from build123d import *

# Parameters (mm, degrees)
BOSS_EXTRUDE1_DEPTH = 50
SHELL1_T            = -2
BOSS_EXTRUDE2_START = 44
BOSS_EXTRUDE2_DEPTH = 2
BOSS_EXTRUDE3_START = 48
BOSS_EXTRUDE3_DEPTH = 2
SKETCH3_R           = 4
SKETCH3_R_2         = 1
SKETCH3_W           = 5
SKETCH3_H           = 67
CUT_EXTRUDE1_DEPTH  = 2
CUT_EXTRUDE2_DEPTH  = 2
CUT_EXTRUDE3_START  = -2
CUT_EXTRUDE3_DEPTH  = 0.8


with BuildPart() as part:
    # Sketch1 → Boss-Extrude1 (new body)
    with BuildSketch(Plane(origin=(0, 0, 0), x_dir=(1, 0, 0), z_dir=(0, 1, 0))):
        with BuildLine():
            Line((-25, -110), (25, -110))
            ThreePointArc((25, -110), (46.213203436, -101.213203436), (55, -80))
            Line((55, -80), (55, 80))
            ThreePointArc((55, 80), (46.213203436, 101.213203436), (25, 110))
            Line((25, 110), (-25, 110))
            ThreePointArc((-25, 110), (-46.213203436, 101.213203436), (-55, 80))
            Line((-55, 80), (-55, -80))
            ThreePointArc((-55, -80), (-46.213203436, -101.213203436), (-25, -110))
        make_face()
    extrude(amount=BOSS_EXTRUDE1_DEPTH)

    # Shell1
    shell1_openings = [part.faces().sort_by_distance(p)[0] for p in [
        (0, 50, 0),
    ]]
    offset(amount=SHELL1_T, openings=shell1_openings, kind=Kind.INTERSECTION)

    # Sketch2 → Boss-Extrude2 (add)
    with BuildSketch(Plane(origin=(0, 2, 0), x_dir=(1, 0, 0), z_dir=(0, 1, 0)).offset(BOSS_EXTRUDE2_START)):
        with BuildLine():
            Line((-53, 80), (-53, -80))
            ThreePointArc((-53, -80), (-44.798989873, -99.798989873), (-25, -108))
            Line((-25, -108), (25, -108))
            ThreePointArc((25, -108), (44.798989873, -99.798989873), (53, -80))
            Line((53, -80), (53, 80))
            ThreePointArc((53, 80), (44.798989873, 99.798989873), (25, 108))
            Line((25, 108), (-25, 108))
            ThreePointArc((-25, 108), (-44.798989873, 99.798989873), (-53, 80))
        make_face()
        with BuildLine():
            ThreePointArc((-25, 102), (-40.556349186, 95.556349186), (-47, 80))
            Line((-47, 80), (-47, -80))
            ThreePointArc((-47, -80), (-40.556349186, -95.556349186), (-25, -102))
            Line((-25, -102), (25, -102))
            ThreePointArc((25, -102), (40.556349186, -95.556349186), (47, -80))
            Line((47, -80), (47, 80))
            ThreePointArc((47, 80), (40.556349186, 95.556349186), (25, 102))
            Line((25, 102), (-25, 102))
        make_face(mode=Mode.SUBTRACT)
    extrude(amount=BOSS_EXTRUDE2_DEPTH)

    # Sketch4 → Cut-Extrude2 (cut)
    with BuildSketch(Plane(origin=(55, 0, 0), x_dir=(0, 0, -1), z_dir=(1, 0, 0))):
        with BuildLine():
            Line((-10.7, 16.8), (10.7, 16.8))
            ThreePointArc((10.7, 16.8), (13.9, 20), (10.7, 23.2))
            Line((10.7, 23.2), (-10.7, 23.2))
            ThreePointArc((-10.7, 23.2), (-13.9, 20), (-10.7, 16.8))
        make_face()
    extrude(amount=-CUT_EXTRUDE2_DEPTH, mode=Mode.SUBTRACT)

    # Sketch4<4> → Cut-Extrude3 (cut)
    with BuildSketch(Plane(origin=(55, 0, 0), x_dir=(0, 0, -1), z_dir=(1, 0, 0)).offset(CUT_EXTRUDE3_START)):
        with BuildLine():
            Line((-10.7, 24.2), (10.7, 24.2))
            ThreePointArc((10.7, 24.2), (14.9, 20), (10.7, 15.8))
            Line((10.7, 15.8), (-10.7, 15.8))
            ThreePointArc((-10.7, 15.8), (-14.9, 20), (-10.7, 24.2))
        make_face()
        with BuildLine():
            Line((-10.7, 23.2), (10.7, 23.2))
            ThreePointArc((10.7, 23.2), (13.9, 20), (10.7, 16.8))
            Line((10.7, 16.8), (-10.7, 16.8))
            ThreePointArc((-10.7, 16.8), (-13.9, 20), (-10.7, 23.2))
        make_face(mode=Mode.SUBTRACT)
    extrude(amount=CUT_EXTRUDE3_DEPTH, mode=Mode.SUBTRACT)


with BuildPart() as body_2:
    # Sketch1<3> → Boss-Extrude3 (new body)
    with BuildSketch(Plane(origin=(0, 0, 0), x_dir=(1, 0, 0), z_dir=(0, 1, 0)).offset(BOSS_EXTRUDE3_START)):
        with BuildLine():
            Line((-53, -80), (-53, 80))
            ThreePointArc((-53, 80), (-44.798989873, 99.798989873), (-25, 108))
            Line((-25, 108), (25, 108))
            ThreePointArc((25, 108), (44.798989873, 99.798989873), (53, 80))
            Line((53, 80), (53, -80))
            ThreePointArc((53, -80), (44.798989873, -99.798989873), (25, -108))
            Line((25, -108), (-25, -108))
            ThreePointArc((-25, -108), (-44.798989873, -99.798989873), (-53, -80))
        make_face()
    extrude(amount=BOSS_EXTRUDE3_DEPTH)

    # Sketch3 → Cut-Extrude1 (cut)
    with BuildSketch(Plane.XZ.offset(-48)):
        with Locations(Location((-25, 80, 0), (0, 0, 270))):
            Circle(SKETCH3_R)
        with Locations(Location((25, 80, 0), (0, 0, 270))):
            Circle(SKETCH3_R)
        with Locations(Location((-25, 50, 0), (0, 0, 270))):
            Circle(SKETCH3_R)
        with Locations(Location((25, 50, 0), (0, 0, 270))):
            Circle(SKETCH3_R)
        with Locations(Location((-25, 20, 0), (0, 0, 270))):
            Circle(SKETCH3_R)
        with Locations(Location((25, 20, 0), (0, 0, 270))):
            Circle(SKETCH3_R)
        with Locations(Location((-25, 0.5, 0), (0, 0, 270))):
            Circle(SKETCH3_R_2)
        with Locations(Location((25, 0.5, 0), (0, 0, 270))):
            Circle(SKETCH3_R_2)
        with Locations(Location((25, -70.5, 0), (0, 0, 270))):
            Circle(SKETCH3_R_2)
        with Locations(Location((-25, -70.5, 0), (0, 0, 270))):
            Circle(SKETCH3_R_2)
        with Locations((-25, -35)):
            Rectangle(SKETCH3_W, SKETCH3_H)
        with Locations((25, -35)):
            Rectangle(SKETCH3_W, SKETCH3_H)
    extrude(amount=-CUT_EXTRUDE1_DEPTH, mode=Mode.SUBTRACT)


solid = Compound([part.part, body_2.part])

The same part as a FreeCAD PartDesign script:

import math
import FreeCAD as App
import Part
import Sketcher

V = App.Vector
Q = App.Units.Quantity


def faces_at(feature, points):
    """Names of the faces that lie closest to the given points."""
    faces = feature.Shape.Faces
    near = lambda p: min(range(len(faces)), key=lambda i: faces[i].distToShape(Part.Vertex(*p))[0])
    return sorted({f"Face{near(p) + 1}" for p in points})

doc = App.newDocument("Part")
body = doc.addObject("PartDesign::Body", "Body")

# Sketch on XZ plane
sketch1 = body.newObject("Sketcher::SketchObject", "Sketch")
sketch1.AttachmentSupport = (doc.getObject("XZ_Plane"), [""])
sketch1.MapMode = "FlatFace"
sketch1.addGeometry([
    Part.LineSegment(V(-25, 110, 0), V(25, 110, 0)),  # 0
    Part.ArcOfCircle(Part.Circle(V(25, 80, 0), V(0, 0, 1), 30), math.radians(0), math.radians(90)),  # 1
    Part.LineSegment(V(55, 80, 0), V(55, -80, 0)),  # 2
    Part.ArcOfCircle(Part.Circle(V(25, -80, 0), V(0, 0, 1), 30), math.radians(-90), math.radians(0)),  # 3
    Part.LineSegment(V(25, -110, 0), V(-25, -110, 0)),  # 4
    Part.ArcOfCircle(Part.Circle(V(-25, -80, 0), V(0, 0, 1), 30), math.radians(180), math.radians(270)),  # 5
    Part.LineSegment(V(-55, -80, 0), V(-55, 80, 0)),  # 6
    Part.ArcOfCircle(Part.Circle(V(-25, 80, 0), V(0, 0, 1), 30), math.radians(90), math.radians(180)),  # 7
], False)
sketch1.addConstraint([
    Sketcher.Constraint("Tangent", 0, 2, 1, 2),
    Sketcher.Constraint("Tangent", 1, 1, 2, 1),
    Sketcher.Constraint("Tangent", 2, 2, 3, 2),
    Sketcher.Constraint("Tangent", 3, 1, 4, 1),
    Sketcher.Constraint("Tangent", 4, 2, 5, 2),
    Sketcher.Constraint("Tangent", 5, 1, 6, 1),
    Sketcher.Constraint("Tangent", 6, 2, 7, 2),
    Sketcher.Constraint("Tangent", 7, 1, 0, 1),
    Sketcher.Constraint("Horizontal", 0),
    Sketcher.Constraint("Vertical", 2),
    Sketcher.Constraint("Horizontal", 4),
    Sketcher.Constraint("Vertical", 6),
    Sketcher.Constraint("Equal", 1, 3),
    Sketcher.Constraint("Equal", 3, 5),
    Sketcher.Constraint("Equal", 5, 7),
    Sketcher.Constraint("Symmetric", 1, 3, 5, 3, -1, 1),
    Sketcher.Constraint("Radius", 1, Q("30 mm")),
    Sketcher.Constraint("DistanceX", 0, 1, 0, 2, Q("50 mm")),
    Sketcher.Constraint("DistanceY", 2, 2, 2, 1, Q("160 mm")),
])
pad1 = body.newObject("PartDesign::Pad", "Pad")
pad1.Profile = sketch1
pad1.Length = 50
pad1.Reversed = True
doc.recompute()

thickness = body.newObject("PartDesign::Thickness", "Thickness")
thickness.Base = (pad1, faces_at(pad1, [(0, 50, 0)]))
thickness.Value = 2
thickness.Reversed = True
thickness.Join = "Intersection"

# Sketch on XZ plane
sketch2 = body.newObject("Sketcher::SketchObject", "Sketch001")
sketch2.AttachmentSupport = (doc.getObject("XZ_Plane"), [""])
sketch2.MapMode = "FlatFace"
sketch2.AttachmentOffset = App.Placement(V(0, 0, -46), App.Rotation())
sketch2.addGeometry([
    Part.LineSegment(V(-53, -80, 0), V(-53, 80, 0)),  # 0
    Part.ArcOfCircle(Part.Circle(V(-25, 80, 0), V(0, 0, 1), 28), math.radians(90), math.radians(180)),  # 1
    Part.LineSegment(V(-25, 108, 0), V(25, 108, 0)),  # 2
    Part.ArcOfCircle(Part.Circle(V(25, 80, 0), V(0, 0, 1), 28), math.radians(0), math.radians(90)),  # 3
    Part.LineSegment(V(53, 80, 0), V(53, -80, 0)),  # 4
    Part.ArcOfCircle(Part.Circle(V(25, -80, 0), V(0, 0, 1), 28), math.radians(-90), math.radians(0)),  # 5
    Part.LineSegment(V(25, -108, 0), V(-25, -108, 0)),  # 6
    Part.ArcOfCircle(Part.Circle(V(-25, -80, 0), V(0, 0, 1), 28), math.radians(-180), math.radians(-90)),  # 7
    Part.ArcOfCircle(Part.Circle(V(-25, -80, 0), V(0, 0, 1), 22), math.radians(180), math.radians(270)),  # 8
    Part.LineSegment(V(-25, -102, 0), V(25, -102, 0)),  # 9
    Part.ArcOfCircle(Part.Circle(V(25, -80, 0), V(0, 0, 1), 22), math.radians(-90), math.radians(0)),  # 10
    Part.LineSegment(V(47, -80, 0), V(47, 80, 0)),  # 11
    Part.ArcOfCircle(Part.Circle(V(25, 80, 0), V(0, 0, 1), 22), math.radians(0), math.radians(90)),  # 12
    Part.LineSegment(V(25, 102, 0), V(-25, 102, 0)),  # 13
    Part.ArcOfCircle(Part.Circle(V(-25, 80, 0), V(0, 0, 1), 22), math.radians(90), math.radians(180)),  # 14
    Part.LineSegment(V(-47, 80, 0), V(-47, -80, 0)),  # 15
], False)
sketch2.addConstraint([
    Sketcher.Constraint("Tangent", 0, 2, 1, 2),
    Sketcher.Constraint("Tangent", 1, 1, 2, 1),
    Sketcher.Constraint("Tangent", 2, 2, 3, 2),
    Sketcher.Constraint("Tangent", 3, 1, 4, 1),
    Sketcher.Constraint("Tangent", 4, 2, 5, 2),
    Sketcher.Constraint("Tangent", 5, 1, 6, 1),
    Sketcher.Constraint("Tangent", 6, 2, 7, 2),
    Sketcher.Constraint("Tangent", 7, 1, 0, 1),
    Sketcher.Constraint("Tangent", 8, 2, 9, 1),
    Sketcher.Constraint("Tangent", 9, 2, 10, 1),
    Sketcher.Constraint("Tangent", 10, 2, 11, 1),
    Sketcher.Constraint("Tangent", 11, 2, 12, 1),
    Sketcher.Constraint("Tangent", 12, 2, 13, 1),
    Sketcher.Constraint("Tangent", 13, 2, 14, 1),
    Sketcher.Constraint("Tangent", 14, 2, 15, 1),
    Sketcher.Constraint("Tangent", 15, 2, 8, 1),
    Sketcher.Constraint("Vertical", 0),
    Sketcher.Constraint("Horizontal", 2),
    Sketcher.Constraint("Vertical", 4),
    Sketcher.Constraint("Horizontal", 6),
    Sketcher.Constraint("Horizontal", 9),
    Sketcher.Constraint("Vertical", 11),
    Sketcher.Constraint("Horizontal", 13),
    Sketcher.Constraint("Vertical", 15),
    Sketcher.Constraint("Coincident", 8, 3, 7, 3),
    Sketcher.Constraint("Coincident", 10, 3, 5, 3),
    Sketcher.Constraint("Coincident", 12, 3, 3, 3),
    Sketcher.Constraint("Equal", 1, 3),
    Sketcher.Constraint("Equal", 3, 5),
    Sketcher.Constraint("Equal", 5, 7),
    Sketcher.Constraint("Equal", 12, 14),
    Sketcher.Constraint("Symmetric", 1, 3, 5, 3, -1, 1),
    Sketcher.Constraint("Radius", 1, Q("28 mm")),
    Sketcher.Constraint("Radius", 8, Q("22 mm")),
    Sketcher.Constraint("DistanceX", 2, 1, 2, 2, Q("50 mm")),
    Sketcher.Constraint("DistanceY", 0, 1, 0, 2, Q("160 mm")),
])
pad2 = body.newObject("PartDesign::Pad", "Pad001")
pad2.Profile = sketch2
pad2.Length = 2
pad2.Reversed = True

# Sketch on YZ plane
sketch3 = body.newObject("Sketcher::SketchObject", "Sketch002")
sketch3.AttachmentSupport = (doc.getObject("YZ_Plane"), [""])
sketch3.MapMode = "FlatFace"
sketch3.AttachmentOffset = App.Placement(V(0, 0, 55), App.Rotation())
sketch3.addGeometry([
    Part.LineSegment(V(16.8, 10.7, 0), V(16.8, -10.7, 0)),
    Part.ArcOfCircle(Part.Circle(V(20, -10.7, 0), V(0, 0, 1), 3.2), math.radians(180), math.radians(360)),
    Part.LineSegment(V(23.2, -10.7, 0), V(23.2, 10.7, 0)),
    Part.ArcOfCircle(Part.Circle(V(20, 10.7, 0), V(0, 0, 1), 3.2), math.radians(0), math.radians(180)),
], False)
sketch3.addConstraint([
    Sketcher.Constraint("Tangent", 0, 2, 1, 1),
    Sketcher.Constraint("Tangent", 1, 2, 2, 1),
    Sketcher.Constraint("Tangent", 2, 2, 3, 1),
    Sketcher.Constraint("Tangent", 3, 2, 0, 1),
    Sketcher.Constraint("Vertical", 0),
    Sketcher.Constraint("Vertical", 2),
    Sketcher.Constraint("Radius", 1, Q("3.2 mm")),
    Sketcher.Constraint("DistanceY", 0, 2, 0, 1, Q("21.4 mm")),
    Sketcher.Constraint("DistanceX", -1, 1, 1, 3, Q("20 mm")),
    Sketcher.Constraint("DistanceY", 1, 3, -1, 1, Q("10.7 mm")),
])
pocket1 = body.newObject("PartDesign::Pocket", "Pocket")
pocket1.Profile = sketch3
pocket1.Length = 2

# Sketch on YZ plane
sketch4 = body.newObject("Sketcher::SketchObject", "Sketch003")
sketch4.AttachmentSupport = (doc.getObject("YZ_Plane"), [""])
sketch4.MapMode = "FlatFace"
sketch4.AttachmentOffset = App.Placement(V(0, 0, 53), App.Rotation())
sketch4.addGeometry([
    Part.LineSegment(V(24.2, -10.7, 0), V(24.2, 10.7, 0)),  # 0
    Part.ArcOfCircle(Part.Circle(V(20, 10.7, 0), V(0, 0, 1), 4.2), math.radians(0), math.radians(180)),  # 1
    Part.LineSegment(V(15.8, 10.7, 0), V(15.8, -10.7, 0)),  # 2
    Part.ArcOfCircle(Part.Circle(V(20, -10.7, 0), V(0, 0, 1), 4.2), math.radians(180), math.radians(360)),  # 3
    Part.LineSegment(V(23.2, 10.7, 0), V(23.2, -10.7, 0)),  # 4
    Part.ArcOfCircle(Part.Circle(V(20, -10.7, 0), V(0, 0, 1), 3.2), math.radians(180), math.radians(360)),  # 5
    Part.LineSegment(V(16.8, -10.7, 0), V(16.8, 10.7, 0)),  # 6
    Part.ArcOfCircle(Part.Circle(V(20, 10.7, 0), V(0, 0, 1), 3.2), math.radians(0), math.radians(180)),  # 7
], False)
sketch4.addConstraint([
    Sketcher.Constraint("Tangent", 0, 2, 1, 1),
    Sketcher.Constraint("Tangent", 1, 2, 2, 1),
    Sketcher.Constraint("Tangent", 2, 2, 3, 1),
    Sketcher.Constraint("Tangent", 3, 2, 0, 1),
    Sketcher.Constraint("Tangent", 4, 2, 5, 2),
    Sketcher.Constraint("Tangent", 5, 1, 6, 1),
    Sketcher.Constraint("Tangent", 6, 2, 7, 2),
    Sketcher.Constraint("Tangent", 7, 1, 4, 1),
    Sketcher.Constraint("Vertical", 0),
    Sketcher.Constraint("Vertical", 2),
    Sketcher.Constraint("Vertical", 4),
    Sketcher.Constraint("Vertical", 6),
    Sketcher.Constraint("Coincident", 5, 3, 3, 3),
    Sketcher.Constraint("Horizontal", 7, 3, 0, 2),
    Sketcher.Constraint("Radius", 1, Q("4.2 mm")),
    Sketcher.Constraint("Radius", 5, Q("3.2 mm")),
    Sketcher.Constraint("DistanceY", 0, 1, 0, 2, Q("21.4 mm")),
    Sketcher.Constraint("DistanceX", -1, 1, 1, 3, Q("20 mm")),
    Sketcher.Constraint("DistanceY", -1, 1, 1, 3, Q("10.7 mm")),
])
pocket2 = body.newObject("PartDesign::Pocket", "Pocket001")
pocket2.Profile = sketch4
pocket2.Length = 0.8
pocket2.Reversed = True
body2 = doc.addObject("PartDesign::Body", "Body001")

# Sketch on XZ plane
sketch5 = body2.newObject("Sketcher::SketchObject", "Sketch004")
sketch5.AttachmentSupport = (doc.getObject("XZ_Plane001"), [""])
sketch5.MapMode = "FlatFace"
sketch5.AttachmentOffset = App.Placement(V(0, 0, -48), App.Rotation())
sketch5.addGeometry([
    Part.LineSegment(V(-53, -80, 0), V(-53, 80, 0)),  # 0
    Part.ArcOfCircle(Part.Circle(V(-25, 80, 0), V(0, 0, 1), 28), math.radians(90), math.radians(180)),  # 1
    Part.LineSegment(V(-25, 108, 0), V(25, 108, 0)),  # 2
    Part.ArcOfCircle(Part.Circle(V(25, 80, 0), V(0, 0, 1), 28), math.radians(0), math.radians(90)),  # 3
    Part.LineSegment(V(53, 80, 0), V(53, -80, 0)),  # 4
    Part.ArcOfCircle(Part.Circle(V(25, -80, 0), V(0, 0, 1), 28), math.radians(-90), math.radians(0)),  # 5
    Part.LineSegment(V(25, -108, 0), V(-25, -108, 0)),  # 6
    Part.ArcOfCircle(Part.Circle(V(-25, -80, 0), V(0, 0, 1), 28), math.radians(-180), math.radians(-90)),  # 7
], False)
sketch5.addConstraint([
    Sketcher.Constraint("Tangent", 0, 2, 1, 2),
    Sketcher.Constraint("Tangent", 1, 1, 2, 1),
    Sketcher.Constraint("Tangent", 2, 2, 3, 2),
    Sketcher.Constraint("Tangent", 3, 1, 4, 1),
    Sketcher.Constraint("Tangent", 4, 2, 5, 2),
    Sketcher.Constraint("Tangent", 5, 1, 6, 1),
    Sketcher.Constraint("Tangent", 6, 2, 7, 2),
    Sketcher.Constraint("Tangent", 7, 1, 0, 1),
    Sketcher.Constraint("Vertical", 0),
    Sketcher.Constraint("Horizontal", 2),
    Sketcher.Constraint("Vertical", 4),
    Sketcher.Constraint("Horizontal", 6),
    Sketcher.Constraint("Equal", 1, 3),
    Sketcher.Constraint("Equal", 3, 5),
    Sketcher.Constraint("Equal", 5, 7),
    Sketcher.Constraint("Symmetric", 1, 3, 5, 3, -1, 1),
    Sketcher.Constraint("Radius", 1, Q("28 mm")),
    Sketcher.Constraint("DistanceX", 2, 1, 2, 2, Q("50 mm")),
    Sketcher.Constraint("DistanceY", 0, 1, 0, 2, Q("160 mm")),
])
pad3 = body2.newObject("PartDesign::Pad", "Pad002")
pad3.Profile = sketch5
pad3.Length = 2
pad3.Reversed = True

# Sketch on XZ plane
sketch6 = body2.newObject("Sketcher::SketchObject", "Sketch005")
sketch6.AttachmentSupport = (doc.getObject("XZ_Plane001"), [""])
sketch6.MapMode = "FlatFace"
sketch6.AttachmentOffset = App.Placement(V(0, 0, -48), App.Rotation())
sketch6.addGeometry([
    Part.Circle(V(-25, 80, 0), V(0, 0, 1), 4),  # 0
    Part.Circle(V(25, 80, 0), V(0, 0, 1), 4),  # 1
    Part.Circle(V(-25, 50, 0), V(0, 0, 1), 4),  # 2
    Part.Circle(V(25, 50, 0), V(0, 0, 1), 4),  # 3
    Part.Circle(V(-25, 20, 0), V(0, 0, 1), 4),  # 4
    Part.Circle(V(25, 20, 0), V(0, 0, 1), 4),  # 5
    Part.Circle(V(-25, 0.5, 0), V(0, 0, 1), 1),  # 6
    Part.Circle(V(25, 0.5, 0), V(0, 0, 1), 1),  # 7
    Part.Circle(V(25, -70.5, 0), V(0, 0, 1), 1),  # 8
    Part.Circle(V(-25, -70.5, 0), V(0, 0, 1), 1),  # 9
    Part.LineSegment(V(-27.5, -1.5, 0), V(-27.5, -68.5, 0)),  # 10
    Part.LineSegment(V(-27.5, -68.5, 0), V(-22.5, -68.5, 0)),  # 11
    Part.LineSegment(V(-22.5, -68.5, 0), V(-22.5, -1.5, 0)),  # 12
    Part.LineSegment(V(-22.5, -1.5, 0), V(-27.5, -1.5, 0)),  # 13
    Part.LineSegment(V(22.5, -1.5, 0), V(22.5, -68.5, 0)),  # 14
    Part.LineSegment(V(22.5, -68.5, 0), V(27.5, -68.5, 0)),  # 15
    Part.LineSegment(V(27.5, -68.5, 0), V(27.5, -1.5, 0)),  # 16
    Part.LineSegment(V(27.5, -1.5, 0), V(22.5, -1.5, 0)),  # 17
], False)
sketch6.addConstraint([
    Sketcher.Constraint("Coincident", 10, 2, 11, 1),
    Sketcher.Constraint("Coincident", 11, 2, 12, 1),
    Sketcher.Constraint("Coincident", 12, 2, 13, 1),
    Sketcher.Constraint("Coincident", 13, 2, 10, 1),
    Sketcher.Constraint("Coincident", 14, 2, 15, 1),
    Sketcher.Constraint("Coincident", 15, 2, 16, 1),
    Sketcher.Constraint("Coincident", 16, 2, 17, 1),
    Sketcher.Constraint("Coincident", 17, 2, 14, 1),
    Sketcher.Constraint("Vertical", 10),
    Sketcher.Constraint("Horizontal", 11),
    Sketcher.Constraint("Vertical", 12),
    Sketcher.Constraint("Horizontal", 13),
    Sketcher.Constraint("Vertical", 14),
    Sketcher.Constraint("Horizontal", 15),
    Sketcher.Constraint("Vertical", 16),
    Sketcher.Constraint("Horizontal", 17),
    Sketcher.Constraint("Equal", 0, 1),
    Sketcher.Constraint("Equal", 1, 2),
    Sketcher.Constraint("Equal", 2, 3),
    Sketcher.Constraint("Equal", 3, 4),
    Sketcher.Constraint("Equal", 4, 5),
    Sketcher.Constraint("Equal", 6, 7),
    Sketcher.Constraint("Equal", 7, 8),
    Sketcher.Constraint("Equal", 8, 9),
    Sketcher.Constraint("Symmetric", 0, 3, 1, 3, -2),
    Sketcher.Constraint("Symmetric", 2, 3, 3, 3, -2),
    Sketcher.Constraint("Symmetric", 4, 3, 5, 3, -2),
    Sketcher.Constraint("Symmetric", 6, 3, 7, 3, -2),
    Sketcher.Constraint("Symmetric", 8, 3, 9, 3, -2),
    Sketcher.Constraint("Symmetric", 11, 2, 14, 2, -2),
    Sketcher.Constraint("Symmetric", 13, 2, 16, 2, -2),
    Sketcher.Constraint("Vertical", 0, 3, 2, 3),
    Sketcher.Constraint("Vertical", 2, 3, 4, 3),
    Sketcher.Constraint("Vertical", 4, 3, 6, 3),
    Sketcher.Constraint("Vertical", 7, 3, 8, 3),
    Sketcher.Constraint("Diameter", 0, Q("8 mm")),
    Sketcher.Constraint("Diameter", 6, Q("2 mm")),
    Sketcher.Constraint("DistanceX", 11, 1, 11, 2, Q("5 mm")),
    Sketcher.Constraint("DistanceY", 10, 2, 10, 1, Q("67 mm")),
    Sketcher.Constraint("DistanceX", 0, 3, -1, 1, Q("25 mm")),
    Sketcher.Constraint("DistanceY", -1, 1, 0, 3, Q("80 mm")),
    Sketcher.Constraint("DistanceY", -1, 1, 2, 3, Q("50 mm")),
    Sketcher.Constraint("DistanceY", -1, 1, 4, 3, Q("20 mm")),
    Sketcher.Constraint("DistanceY", 8, 3, 7, 3, Q("71 mm")),
    Sketcher.Constraint("DistanceY", 9, 3, 10, 2, Q("2 mm")),
    Sketcher.Constraint("DistanceX", 11, 2, 14, 2, Q("45 mm")),
    Sketcher.Constraint("DistanceY", -1, 1, 6, 3, Q("0.5 mm")),
])
pocket3 = body2.newObject("PartDesign::Pocket", "Pocket002")
pocket3.Profile = sketch6
pocket3.Length = 2

doc.recompute()
